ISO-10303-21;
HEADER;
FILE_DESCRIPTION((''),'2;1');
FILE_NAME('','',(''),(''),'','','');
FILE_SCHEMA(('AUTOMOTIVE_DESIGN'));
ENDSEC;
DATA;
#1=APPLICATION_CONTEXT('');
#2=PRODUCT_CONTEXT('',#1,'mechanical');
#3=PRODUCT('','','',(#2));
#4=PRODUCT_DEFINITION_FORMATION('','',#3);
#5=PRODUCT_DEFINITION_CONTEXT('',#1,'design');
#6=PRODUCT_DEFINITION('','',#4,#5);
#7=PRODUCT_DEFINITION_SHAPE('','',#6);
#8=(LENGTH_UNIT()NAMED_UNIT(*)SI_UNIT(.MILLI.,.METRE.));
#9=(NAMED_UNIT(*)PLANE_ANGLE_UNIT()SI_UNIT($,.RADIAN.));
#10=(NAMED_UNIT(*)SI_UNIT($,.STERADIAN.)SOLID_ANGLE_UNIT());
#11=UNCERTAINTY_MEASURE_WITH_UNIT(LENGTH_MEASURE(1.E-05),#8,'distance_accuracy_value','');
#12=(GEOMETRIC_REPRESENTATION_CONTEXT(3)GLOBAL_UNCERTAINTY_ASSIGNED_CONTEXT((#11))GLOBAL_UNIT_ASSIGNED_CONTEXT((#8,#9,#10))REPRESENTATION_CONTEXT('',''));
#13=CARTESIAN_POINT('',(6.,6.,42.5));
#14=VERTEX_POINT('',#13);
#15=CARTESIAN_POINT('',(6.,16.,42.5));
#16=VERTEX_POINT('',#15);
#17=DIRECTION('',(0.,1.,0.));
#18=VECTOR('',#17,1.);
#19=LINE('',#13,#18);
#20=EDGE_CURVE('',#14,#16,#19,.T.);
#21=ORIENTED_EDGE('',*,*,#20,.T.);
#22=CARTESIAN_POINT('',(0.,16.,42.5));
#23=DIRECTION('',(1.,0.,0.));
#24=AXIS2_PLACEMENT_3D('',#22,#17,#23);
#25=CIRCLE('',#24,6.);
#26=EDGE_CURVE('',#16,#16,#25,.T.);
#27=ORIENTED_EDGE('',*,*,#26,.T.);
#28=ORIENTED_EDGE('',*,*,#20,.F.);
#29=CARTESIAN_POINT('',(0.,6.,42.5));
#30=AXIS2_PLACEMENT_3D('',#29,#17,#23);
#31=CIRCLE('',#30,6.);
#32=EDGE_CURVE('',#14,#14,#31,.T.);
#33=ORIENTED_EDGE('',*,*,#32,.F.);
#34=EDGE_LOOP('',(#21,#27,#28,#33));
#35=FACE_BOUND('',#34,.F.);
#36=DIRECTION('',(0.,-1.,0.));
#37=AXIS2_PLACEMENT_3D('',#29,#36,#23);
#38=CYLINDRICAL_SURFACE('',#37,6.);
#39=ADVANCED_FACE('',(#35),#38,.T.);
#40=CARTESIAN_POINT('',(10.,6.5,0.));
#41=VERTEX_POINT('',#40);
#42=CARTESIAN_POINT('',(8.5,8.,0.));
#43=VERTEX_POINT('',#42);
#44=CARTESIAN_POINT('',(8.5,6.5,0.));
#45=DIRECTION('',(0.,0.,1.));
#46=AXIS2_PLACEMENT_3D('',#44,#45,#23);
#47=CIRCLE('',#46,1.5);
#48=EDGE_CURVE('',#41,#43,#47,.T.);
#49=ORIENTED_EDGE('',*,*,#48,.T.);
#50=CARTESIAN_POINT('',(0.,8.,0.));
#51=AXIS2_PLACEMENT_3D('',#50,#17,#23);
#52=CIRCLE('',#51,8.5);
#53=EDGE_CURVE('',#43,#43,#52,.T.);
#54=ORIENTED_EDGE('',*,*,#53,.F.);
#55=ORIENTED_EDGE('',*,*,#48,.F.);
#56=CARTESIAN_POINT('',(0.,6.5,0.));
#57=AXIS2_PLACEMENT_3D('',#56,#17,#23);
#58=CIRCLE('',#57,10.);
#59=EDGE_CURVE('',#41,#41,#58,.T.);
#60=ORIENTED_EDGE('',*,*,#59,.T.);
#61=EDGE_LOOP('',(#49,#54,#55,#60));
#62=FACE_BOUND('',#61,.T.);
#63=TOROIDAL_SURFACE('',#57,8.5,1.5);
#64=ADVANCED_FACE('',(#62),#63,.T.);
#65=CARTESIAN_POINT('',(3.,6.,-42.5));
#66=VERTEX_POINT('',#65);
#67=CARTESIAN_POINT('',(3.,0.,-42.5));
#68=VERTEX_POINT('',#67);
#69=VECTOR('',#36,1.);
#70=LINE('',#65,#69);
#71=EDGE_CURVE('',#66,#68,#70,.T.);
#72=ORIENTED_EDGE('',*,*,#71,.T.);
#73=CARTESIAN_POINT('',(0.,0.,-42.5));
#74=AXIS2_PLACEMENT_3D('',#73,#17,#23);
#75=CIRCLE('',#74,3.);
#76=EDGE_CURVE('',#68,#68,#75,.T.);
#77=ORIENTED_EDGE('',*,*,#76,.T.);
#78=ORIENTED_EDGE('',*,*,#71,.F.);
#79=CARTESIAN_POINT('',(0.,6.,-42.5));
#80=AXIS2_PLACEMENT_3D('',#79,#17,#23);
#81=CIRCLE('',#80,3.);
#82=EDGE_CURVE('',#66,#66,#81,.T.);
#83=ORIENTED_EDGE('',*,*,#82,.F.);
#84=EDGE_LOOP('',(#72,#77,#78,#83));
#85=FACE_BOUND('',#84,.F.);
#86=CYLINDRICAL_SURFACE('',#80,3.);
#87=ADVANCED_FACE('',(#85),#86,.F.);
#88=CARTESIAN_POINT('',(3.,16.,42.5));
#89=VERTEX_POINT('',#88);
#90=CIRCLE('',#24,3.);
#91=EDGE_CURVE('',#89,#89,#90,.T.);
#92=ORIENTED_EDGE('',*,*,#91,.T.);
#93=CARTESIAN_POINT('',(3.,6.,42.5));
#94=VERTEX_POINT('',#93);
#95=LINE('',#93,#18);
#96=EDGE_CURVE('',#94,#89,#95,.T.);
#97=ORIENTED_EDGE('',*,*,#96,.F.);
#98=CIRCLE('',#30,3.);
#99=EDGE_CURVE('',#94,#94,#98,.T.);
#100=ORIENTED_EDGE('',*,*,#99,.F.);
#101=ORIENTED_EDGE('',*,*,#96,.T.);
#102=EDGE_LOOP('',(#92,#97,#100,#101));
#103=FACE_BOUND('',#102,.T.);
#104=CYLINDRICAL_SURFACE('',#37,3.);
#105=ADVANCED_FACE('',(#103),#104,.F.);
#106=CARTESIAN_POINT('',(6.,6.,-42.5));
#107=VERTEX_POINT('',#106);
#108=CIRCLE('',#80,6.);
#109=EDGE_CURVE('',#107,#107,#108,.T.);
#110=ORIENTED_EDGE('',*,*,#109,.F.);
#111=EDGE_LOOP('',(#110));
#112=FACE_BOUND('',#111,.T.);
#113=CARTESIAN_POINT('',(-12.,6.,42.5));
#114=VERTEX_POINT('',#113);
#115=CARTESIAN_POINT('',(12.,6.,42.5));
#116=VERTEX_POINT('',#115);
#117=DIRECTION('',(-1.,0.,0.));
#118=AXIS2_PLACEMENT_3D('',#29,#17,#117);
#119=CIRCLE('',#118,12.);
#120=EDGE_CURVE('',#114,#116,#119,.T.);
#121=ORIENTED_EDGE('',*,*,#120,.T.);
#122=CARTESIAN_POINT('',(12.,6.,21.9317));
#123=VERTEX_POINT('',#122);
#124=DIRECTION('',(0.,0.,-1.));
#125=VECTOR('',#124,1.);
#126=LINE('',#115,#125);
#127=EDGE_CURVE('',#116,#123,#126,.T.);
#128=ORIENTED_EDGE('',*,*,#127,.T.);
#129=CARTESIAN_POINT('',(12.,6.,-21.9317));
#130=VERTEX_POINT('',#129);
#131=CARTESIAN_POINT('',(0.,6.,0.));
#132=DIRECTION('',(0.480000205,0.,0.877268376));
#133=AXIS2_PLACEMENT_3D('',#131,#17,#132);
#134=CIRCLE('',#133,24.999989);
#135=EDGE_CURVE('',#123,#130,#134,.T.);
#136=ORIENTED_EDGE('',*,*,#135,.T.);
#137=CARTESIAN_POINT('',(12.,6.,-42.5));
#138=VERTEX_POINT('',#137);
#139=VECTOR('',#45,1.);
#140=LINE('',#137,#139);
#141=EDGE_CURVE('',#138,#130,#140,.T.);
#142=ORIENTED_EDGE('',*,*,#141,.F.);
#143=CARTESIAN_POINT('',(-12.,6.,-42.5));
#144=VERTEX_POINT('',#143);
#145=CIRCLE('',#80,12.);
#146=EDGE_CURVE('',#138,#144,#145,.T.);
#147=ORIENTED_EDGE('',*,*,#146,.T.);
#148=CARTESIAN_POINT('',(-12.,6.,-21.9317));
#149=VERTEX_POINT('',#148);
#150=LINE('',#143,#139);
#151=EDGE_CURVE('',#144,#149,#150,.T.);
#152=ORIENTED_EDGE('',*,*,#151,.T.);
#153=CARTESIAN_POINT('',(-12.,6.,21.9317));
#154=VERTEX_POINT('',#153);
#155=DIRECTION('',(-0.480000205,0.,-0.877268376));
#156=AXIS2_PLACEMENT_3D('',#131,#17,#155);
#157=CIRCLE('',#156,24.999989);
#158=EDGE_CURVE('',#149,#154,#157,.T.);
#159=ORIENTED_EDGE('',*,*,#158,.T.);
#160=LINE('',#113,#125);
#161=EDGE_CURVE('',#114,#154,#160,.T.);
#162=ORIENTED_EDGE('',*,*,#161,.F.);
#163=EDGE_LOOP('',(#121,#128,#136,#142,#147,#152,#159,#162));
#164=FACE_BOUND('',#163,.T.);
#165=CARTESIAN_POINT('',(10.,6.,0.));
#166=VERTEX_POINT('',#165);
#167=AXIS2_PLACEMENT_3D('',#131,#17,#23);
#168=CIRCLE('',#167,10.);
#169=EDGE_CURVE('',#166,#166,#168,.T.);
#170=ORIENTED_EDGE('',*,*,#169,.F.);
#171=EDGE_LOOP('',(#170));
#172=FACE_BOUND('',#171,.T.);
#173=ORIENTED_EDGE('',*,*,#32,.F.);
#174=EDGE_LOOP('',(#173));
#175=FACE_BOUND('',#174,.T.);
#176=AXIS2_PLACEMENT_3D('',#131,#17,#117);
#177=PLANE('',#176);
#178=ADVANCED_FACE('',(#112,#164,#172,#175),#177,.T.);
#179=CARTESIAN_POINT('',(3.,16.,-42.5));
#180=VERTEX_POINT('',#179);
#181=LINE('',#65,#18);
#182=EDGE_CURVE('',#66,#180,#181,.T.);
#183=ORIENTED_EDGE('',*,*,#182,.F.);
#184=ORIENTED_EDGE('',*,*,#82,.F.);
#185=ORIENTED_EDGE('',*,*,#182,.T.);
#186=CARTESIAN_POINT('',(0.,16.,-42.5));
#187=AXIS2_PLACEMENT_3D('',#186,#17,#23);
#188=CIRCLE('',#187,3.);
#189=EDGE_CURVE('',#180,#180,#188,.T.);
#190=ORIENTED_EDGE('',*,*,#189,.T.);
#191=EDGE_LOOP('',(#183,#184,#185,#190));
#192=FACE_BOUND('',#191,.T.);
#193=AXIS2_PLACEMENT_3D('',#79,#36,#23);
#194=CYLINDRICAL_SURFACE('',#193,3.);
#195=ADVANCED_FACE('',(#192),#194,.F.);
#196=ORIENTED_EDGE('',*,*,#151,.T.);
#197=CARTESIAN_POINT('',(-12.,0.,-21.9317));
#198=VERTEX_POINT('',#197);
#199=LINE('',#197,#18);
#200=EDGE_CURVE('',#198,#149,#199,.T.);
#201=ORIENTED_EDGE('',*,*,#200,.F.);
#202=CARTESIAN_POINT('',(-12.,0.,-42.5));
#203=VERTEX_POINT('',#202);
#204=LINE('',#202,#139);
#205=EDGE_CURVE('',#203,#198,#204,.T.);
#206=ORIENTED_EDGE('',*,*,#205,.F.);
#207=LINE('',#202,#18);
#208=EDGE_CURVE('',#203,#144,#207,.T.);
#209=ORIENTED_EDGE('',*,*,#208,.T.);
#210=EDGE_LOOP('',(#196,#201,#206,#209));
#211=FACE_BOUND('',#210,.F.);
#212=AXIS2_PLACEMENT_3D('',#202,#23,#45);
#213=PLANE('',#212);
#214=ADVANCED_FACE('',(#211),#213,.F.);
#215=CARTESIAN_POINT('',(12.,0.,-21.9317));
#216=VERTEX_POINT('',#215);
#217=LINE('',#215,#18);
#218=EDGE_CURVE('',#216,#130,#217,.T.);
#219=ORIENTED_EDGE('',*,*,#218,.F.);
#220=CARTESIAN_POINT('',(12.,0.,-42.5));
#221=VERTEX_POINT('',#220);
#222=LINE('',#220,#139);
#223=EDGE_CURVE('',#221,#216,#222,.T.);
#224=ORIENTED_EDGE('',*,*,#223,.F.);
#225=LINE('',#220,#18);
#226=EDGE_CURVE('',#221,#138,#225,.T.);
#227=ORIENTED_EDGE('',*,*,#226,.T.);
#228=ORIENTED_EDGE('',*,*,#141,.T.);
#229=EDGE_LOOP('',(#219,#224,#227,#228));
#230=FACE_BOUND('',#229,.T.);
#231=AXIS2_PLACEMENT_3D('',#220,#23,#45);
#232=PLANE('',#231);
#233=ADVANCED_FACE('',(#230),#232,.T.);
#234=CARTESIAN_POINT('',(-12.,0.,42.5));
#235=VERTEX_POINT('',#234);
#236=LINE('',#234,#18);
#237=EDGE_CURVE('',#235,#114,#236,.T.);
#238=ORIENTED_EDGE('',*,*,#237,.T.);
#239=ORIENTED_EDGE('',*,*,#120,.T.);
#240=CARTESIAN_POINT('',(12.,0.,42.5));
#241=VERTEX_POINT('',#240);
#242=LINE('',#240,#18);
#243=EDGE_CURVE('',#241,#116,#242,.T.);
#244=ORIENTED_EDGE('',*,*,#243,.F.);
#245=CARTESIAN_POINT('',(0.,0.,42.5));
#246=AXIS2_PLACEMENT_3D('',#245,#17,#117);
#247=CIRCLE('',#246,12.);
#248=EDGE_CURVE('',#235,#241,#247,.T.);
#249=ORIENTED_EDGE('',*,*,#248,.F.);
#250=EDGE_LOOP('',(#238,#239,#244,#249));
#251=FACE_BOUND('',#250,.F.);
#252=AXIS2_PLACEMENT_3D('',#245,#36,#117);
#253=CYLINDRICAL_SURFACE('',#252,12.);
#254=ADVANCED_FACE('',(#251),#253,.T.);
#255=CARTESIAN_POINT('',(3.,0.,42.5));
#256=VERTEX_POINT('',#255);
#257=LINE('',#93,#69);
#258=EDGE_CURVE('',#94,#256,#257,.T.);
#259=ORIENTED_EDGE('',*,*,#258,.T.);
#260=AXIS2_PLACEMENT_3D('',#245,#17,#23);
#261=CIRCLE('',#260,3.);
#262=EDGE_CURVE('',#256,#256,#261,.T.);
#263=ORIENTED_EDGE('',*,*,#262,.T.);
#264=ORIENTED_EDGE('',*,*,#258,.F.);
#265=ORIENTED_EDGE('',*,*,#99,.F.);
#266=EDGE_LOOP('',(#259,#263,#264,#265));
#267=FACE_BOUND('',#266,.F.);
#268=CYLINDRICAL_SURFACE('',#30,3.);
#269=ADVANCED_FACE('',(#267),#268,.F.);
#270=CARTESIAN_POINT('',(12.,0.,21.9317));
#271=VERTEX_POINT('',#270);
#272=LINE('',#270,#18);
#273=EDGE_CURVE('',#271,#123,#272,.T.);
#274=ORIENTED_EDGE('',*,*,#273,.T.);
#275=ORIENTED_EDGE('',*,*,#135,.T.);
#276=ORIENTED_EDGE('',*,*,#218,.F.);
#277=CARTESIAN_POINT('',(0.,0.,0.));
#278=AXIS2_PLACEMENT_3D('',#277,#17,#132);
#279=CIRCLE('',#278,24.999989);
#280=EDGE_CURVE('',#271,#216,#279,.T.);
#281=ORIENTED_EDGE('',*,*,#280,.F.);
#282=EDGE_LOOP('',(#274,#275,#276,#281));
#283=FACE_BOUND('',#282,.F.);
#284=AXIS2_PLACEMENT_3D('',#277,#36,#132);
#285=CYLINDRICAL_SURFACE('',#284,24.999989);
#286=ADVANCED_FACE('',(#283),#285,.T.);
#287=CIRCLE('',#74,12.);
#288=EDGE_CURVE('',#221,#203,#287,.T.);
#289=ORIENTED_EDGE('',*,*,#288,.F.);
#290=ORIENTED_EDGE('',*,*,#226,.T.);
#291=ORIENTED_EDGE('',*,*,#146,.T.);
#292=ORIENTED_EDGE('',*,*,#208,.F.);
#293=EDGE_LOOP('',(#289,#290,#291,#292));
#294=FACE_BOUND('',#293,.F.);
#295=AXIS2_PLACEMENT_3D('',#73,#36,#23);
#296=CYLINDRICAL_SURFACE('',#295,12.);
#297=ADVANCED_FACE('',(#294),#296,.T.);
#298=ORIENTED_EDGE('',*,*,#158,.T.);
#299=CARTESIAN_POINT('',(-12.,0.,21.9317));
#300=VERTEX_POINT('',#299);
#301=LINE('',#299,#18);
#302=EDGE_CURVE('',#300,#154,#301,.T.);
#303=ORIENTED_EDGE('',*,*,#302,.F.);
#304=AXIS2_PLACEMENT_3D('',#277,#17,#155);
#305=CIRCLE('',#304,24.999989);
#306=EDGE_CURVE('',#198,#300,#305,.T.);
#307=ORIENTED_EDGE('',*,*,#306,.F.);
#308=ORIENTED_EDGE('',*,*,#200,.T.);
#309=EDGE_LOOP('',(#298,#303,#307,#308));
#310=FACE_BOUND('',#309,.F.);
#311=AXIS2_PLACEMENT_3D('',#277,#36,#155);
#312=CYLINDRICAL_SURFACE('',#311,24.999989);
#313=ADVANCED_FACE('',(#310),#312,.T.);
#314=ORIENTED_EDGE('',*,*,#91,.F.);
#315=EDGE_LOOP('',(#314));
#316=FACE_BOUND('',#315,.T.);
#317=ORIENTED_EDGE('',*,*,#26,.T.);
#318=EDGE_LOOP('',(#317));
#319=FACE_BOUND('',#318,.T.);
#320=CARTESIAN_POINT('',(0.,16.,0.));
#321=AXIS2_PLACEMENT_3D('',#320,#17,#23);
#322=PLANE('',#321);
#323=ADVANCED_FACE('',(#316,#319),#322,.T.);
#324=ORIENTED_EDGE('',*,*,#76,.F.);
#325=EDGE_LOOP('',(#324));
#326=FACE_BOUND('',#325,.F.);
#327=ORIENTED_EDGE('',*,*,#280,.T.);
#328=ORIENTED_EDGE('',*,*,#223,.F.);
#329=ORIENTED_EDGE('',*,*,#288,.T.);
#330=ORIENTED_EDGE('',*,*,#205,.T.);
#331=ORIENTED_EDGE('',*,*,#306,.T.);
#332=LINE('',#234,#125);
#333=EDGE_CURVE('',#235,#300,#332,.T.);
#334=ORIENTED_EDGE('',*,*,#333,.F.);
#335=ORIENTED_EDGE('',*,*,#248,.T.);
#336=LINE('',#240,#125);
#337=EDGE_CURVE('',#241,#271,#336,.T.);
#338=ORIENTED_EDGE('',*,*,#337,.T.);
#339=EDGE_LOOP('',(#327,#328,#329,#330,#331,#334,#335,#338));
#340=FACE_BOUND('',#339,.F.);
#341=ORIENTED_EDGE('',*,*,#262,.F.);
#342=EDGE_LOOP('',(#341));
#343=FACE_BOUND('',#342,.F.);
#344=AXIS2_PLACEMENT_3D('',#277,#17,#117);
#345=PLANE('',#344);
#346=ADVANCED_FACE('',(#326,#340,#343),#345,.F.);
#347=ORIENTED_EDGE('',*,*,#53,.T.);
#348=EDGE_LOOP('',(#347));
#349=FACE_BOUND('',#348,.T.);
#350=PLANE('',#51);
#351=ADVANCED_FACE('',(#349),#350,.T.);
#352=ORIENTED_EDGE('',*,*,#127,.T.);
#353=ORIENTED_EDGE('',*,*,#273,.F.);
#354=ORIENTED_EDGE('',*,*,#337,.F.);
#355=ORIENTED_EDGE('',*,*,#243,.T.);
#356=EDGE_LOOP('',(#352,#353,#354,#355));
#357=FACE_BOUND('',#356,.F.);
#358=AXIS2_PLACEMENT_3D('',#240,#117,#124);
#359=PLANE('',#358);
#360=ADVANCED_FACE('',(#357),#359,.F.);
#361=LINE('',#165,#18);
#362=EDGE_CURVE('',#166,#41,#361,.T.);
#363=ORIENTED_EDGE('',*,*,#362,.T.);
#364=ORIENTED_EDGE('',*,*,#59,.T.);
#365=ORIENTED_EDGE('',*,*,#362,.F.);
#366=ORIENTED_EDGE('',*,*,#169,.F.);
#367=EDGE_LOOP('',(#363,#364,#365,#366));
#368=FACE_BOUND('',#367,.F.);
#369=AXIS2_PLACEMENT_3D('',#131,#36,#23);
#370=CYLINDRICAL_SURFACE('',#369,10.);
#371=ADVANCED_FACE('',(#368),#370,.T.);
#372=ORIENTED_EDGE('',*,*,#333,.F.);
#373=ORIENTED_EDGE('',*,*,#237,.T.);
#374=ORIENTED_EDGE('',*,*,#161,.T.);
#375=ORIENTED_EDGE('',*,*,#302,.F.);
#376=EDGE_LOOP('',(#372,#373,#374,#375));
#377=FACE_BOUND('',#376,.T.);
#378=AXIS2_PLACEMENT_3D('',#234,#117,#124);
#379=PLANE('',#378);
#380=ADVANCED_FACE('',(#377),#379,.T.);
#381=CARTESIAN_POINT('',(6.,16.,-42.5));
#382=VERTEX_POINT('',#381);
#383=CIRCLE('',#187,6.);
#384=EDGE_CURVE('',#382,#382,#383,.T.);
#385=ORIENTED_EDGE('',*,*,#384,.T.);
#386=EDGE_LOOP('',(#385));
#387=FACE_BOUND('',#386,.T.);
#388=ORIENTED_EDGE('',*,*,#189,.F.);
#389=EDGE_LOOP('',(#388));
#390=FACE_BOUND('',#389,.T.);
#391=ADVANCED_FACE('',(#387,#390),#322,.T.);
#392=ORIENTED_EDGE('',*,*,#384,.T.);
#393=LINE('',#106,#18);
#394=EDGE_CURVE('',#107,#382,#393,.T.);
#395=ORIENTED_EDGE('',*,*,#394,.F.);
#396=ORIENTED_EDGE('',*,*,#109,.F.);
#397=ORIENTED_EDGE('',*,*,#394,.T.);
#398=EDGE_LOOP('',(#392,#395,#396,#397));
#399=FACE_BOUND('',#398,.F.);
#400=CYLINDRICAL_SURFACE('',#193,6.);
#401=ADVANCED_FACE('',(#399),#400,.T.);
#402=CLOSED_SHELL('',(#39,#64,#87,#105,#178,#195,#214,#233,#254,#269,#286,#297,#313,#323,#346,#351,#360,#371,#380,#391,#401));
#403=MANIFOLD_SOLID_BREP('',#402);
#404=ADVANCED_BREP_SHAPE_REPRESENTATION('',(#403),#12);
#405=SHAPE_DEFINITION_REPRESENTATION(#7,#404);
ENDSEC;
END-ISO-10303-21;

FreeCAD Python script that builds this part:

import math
import FreeCAD as App
import Part
import Sketcher

V = App.Vector


def edges_at(feature, points):
    """Names of the edges that pass closest to the given points."""
    edges = feature.Shape.Edges
    near = lambda p: min(range(len(edges)), key=lambda i: edges[i].distToShape(Part.Vertex(*p))[0])
    return sorted({f"Edge{near(p) + 1}" for p in points})

doc = App.newDocument("Part")
body = doc.addObject("PartDesign::Body", "Body")

sketch1 = body.newObject("Sketcher::SketchObject", "Sketch")
sketch1.AttachmentSupport = (doc.getObject("XZ_Plane"), [""])
sketch1.MapMode = "FlatFace"
sketch1.addGeometry([
    Part.LineSegment(V(-12, 22, 0), V(-12, 42, 0)),
    Part.ArcOfCircle(Part.Circle(V(0, 42, 0), V(0, 0, 1), 12), math.radians(0), math.radians(180)),
    Part.LineSegment(V(12, 42, 0), V(12, 22, 0)),
    Part.ArcOfCircle(Part.Circle(V(0, 0, 0), V(0, 0, 1), 25), math.radians(-61), math.radians(61)),
    Part.LineSegment(V(12, -22, 0), V(12, -42, 0)),
    Part.ArcOfCircle(Part.Circle(V(0, -42, 0), V(0, 0, 1), 12), math.radians(180), math.radians(360)),
    Part.LineSegment(V(-12, -42, 0), V(-12, -22, 0)),
    Part.ArcOfCircle(Part.Circle(V(0, 0, 0), V(0, 0, 1), 25), math.radians(119), math.radians(241)),
], False)
sketch1.addConstraint([
    Sketcher.Constraint("Tangent", 0, 2, 1, 2),
    Sketcher.Constraint("Tangent", 1, 1, 2, 1),
    Sketcher.Constraint("Coincident", 2, 2, 3, 2),
    Sketcher.Constraint("Coincident", 3, 1, 4, 1),
    Sketcher.Constraint("Tangent", 4, 2, 5, 2),
    Sketcher.Constraint("Tangent", 5, 1, 6, 1),
    Sketcher.Constraint("Coincident", 6, 2, 7, 2),
    Sketcher.Constraint("Coincident", 7, 1, 0, 1),
    Sketcher.Constraint("Vertical", 0),
    Sketcher.Constraint("Vertical", 2),
    Sketcher.Constraint("Vertical", 4),
    Sketcher.Constraint("Vertical", 6),
    Sketcher.Constraint("Coincident", 3, 3, -1, 1),
    Sketcher.Constraint("Coincident", 7, 3, -1, 1),
    Sketcher.Constraint("Equal", 1, 5),
    Sketcher.Constraint("Equal", 3, 7),
    Sketcher.Constraint("Symmetric", 1, 3, 5, 3, -1, 1),
    Sketcher.Constraint("PointOnObject", 1, 3, -2),
    Sketcher.Constraint("Radius", 1, 12.0),
    Sketcher.Constraint("Radius", 3, 25.0),
    Sketcher.Constraint("DistanceY", 5, 3, 1, 3, 85.0),
])
pad1 = body.newObject("PartDesign::Pad", "Pad")
pad1.Profile = sketch1
pad1.Length = 6
pad1.Reversed = True

sketch2 = body.newObject("Sketcher::SketchObject", "Sketch001")
sketch2.AttachmentSupport = (doc.getObject("XZ_Plane"), [""])
sketch2.MapMode = "FlatFace"
sketch2.AttachmentOffset = App.Placement(V(0, 0, -6), App.Rotation())
sketch2.addGeometry([
    Part.Circle(V(0, 42.5, 0), V(0, 0, 1), 6),
    Part.Circle(V(0, 42.5, 0), V(0, 0, 1), 3),
    Part.Circle(V(0, -42.5, 0), V(0, 0, 1), 6),
    Part.Circle(V(0, -42.5, 0), V(0, 0, 1), 3),
], False)
sketch2.addConstraint([
    Sketcher.Constraint("Coincident", 1, 3, 0, 3),
    Sketcher.Constraint("Coincident", 3, 3, 2, 3),
    Sketcher.Constraint("Equal", 0, 2),
    Sketcher.Constraint("Equal", 1, 3),
    Sketcher.Constraint("Symmetric", 0, 3, 2, 3, -1, 1),
    Sketcher.Constraint("PointOnObject", 0, 3, -2),
    Sketcher.Constraint("Diameter", 0, 12.0),
    Sketcher.Constraint("Diameter", 1, 6.0),
    Sketcher.Constraint("DistanceY", 2, 3, 0, 3, 85.0),
])
pad2 = body.newObject("PartDesign::Pad", "Pad001")
pad2.Profile = sketch2
pad2.Length = 10
pad2.Reversed = True

sketch3 = body.newObject("Sketcher::SketchObject", "Sketch002")
sketch3.AttachmentSupport = (doc.getObject("XZ_Plane"), [""])
sketch3.MapMode = "FlatFace"
sketch3.AttachmentOffset = App.Placement(V(0, 0, -6), App.Rotation())
sketch3.addGeometry(Part.Circle(V(0, 42.5, 0), V(0, 0, 1), 3), False)
sketch3.addConstraint([
    Sketcher.Constraint("PointOnObject", 0, 3, -2),
    Sketcher.Constraint("Diameter", 0, 6.0),
    Sketcher.Constraint("DistanceY", -1, 1, 0, 3, 42.5),
])
pocket1 = body.newObject("PartDesign::Pocket", "Pocket")
pocket1.Profile = sketch3
pocket1.Length = 7
pocket1.Reversed = True

sketch4 = body.newObject("Sketcher::SketchObject", "Sketch003")
sketch4.AttachmentSupport = (doc.getObject("XZ_Plane"), [""])
sketch4.MapMode = "FlatFace"
sketch4.AttachmentOffset = App.Placement(V(0, 0, -6), App.Rotation())
sketch4.addGeometry(Part.Circle(V(0, -42.5, 0), V(0, 0, 1), 3), False)
sketch4.addConstraint([
    Sketcher.Constraint("PointOnObject", 0, 3, -2),
    Sketcher.Constraint("Diameter", 0, 6.0),
    Sketcher.Constraint("DistanceY", 0, 3, -1, 1, 42.5),
])
pocket2 = body.newObject("PartDesign::Pocket", "Pocket001")
pocket2.Profile = sketch4
pocket2.Length = 7
pocket2.Reversed = True

sketch5 = body.newObject("Sketcher::SketchObject", "Sketch004")
sketch5.AttachmentSupport = (doc.getObject("XZ_Plane"), [""])
sketch5.MapMode = "FlatFace"
sketch5.AttachmentOffset = App.Placement(V(0, 0, -6), App.Rotation())
sketch5.addGeometry(Part.Circle(V(0, 0, 0), V(0, 0, 1), 10), False)
sketch5.addConstraint([
    Sketcher.Constraint("Coincident", 0, 3, -1, 1),
    Sketcher.Constraint("Diameter", 0, 20.0),
])
pad3 = body.newObject("PartDesign::Pad", "Pad002")
pad3.Profile = sketch5
pad3.Length = 2
pad3.Reversed = True
doc.recompute()

fillet = body.newObject("PartDesign::Fillet", "Fillet")
fillet.Base = (pad3, edges_at(pad3, [(-10, 8, 0)]))
fillet.Radius = 1.5

doc.recompute()
